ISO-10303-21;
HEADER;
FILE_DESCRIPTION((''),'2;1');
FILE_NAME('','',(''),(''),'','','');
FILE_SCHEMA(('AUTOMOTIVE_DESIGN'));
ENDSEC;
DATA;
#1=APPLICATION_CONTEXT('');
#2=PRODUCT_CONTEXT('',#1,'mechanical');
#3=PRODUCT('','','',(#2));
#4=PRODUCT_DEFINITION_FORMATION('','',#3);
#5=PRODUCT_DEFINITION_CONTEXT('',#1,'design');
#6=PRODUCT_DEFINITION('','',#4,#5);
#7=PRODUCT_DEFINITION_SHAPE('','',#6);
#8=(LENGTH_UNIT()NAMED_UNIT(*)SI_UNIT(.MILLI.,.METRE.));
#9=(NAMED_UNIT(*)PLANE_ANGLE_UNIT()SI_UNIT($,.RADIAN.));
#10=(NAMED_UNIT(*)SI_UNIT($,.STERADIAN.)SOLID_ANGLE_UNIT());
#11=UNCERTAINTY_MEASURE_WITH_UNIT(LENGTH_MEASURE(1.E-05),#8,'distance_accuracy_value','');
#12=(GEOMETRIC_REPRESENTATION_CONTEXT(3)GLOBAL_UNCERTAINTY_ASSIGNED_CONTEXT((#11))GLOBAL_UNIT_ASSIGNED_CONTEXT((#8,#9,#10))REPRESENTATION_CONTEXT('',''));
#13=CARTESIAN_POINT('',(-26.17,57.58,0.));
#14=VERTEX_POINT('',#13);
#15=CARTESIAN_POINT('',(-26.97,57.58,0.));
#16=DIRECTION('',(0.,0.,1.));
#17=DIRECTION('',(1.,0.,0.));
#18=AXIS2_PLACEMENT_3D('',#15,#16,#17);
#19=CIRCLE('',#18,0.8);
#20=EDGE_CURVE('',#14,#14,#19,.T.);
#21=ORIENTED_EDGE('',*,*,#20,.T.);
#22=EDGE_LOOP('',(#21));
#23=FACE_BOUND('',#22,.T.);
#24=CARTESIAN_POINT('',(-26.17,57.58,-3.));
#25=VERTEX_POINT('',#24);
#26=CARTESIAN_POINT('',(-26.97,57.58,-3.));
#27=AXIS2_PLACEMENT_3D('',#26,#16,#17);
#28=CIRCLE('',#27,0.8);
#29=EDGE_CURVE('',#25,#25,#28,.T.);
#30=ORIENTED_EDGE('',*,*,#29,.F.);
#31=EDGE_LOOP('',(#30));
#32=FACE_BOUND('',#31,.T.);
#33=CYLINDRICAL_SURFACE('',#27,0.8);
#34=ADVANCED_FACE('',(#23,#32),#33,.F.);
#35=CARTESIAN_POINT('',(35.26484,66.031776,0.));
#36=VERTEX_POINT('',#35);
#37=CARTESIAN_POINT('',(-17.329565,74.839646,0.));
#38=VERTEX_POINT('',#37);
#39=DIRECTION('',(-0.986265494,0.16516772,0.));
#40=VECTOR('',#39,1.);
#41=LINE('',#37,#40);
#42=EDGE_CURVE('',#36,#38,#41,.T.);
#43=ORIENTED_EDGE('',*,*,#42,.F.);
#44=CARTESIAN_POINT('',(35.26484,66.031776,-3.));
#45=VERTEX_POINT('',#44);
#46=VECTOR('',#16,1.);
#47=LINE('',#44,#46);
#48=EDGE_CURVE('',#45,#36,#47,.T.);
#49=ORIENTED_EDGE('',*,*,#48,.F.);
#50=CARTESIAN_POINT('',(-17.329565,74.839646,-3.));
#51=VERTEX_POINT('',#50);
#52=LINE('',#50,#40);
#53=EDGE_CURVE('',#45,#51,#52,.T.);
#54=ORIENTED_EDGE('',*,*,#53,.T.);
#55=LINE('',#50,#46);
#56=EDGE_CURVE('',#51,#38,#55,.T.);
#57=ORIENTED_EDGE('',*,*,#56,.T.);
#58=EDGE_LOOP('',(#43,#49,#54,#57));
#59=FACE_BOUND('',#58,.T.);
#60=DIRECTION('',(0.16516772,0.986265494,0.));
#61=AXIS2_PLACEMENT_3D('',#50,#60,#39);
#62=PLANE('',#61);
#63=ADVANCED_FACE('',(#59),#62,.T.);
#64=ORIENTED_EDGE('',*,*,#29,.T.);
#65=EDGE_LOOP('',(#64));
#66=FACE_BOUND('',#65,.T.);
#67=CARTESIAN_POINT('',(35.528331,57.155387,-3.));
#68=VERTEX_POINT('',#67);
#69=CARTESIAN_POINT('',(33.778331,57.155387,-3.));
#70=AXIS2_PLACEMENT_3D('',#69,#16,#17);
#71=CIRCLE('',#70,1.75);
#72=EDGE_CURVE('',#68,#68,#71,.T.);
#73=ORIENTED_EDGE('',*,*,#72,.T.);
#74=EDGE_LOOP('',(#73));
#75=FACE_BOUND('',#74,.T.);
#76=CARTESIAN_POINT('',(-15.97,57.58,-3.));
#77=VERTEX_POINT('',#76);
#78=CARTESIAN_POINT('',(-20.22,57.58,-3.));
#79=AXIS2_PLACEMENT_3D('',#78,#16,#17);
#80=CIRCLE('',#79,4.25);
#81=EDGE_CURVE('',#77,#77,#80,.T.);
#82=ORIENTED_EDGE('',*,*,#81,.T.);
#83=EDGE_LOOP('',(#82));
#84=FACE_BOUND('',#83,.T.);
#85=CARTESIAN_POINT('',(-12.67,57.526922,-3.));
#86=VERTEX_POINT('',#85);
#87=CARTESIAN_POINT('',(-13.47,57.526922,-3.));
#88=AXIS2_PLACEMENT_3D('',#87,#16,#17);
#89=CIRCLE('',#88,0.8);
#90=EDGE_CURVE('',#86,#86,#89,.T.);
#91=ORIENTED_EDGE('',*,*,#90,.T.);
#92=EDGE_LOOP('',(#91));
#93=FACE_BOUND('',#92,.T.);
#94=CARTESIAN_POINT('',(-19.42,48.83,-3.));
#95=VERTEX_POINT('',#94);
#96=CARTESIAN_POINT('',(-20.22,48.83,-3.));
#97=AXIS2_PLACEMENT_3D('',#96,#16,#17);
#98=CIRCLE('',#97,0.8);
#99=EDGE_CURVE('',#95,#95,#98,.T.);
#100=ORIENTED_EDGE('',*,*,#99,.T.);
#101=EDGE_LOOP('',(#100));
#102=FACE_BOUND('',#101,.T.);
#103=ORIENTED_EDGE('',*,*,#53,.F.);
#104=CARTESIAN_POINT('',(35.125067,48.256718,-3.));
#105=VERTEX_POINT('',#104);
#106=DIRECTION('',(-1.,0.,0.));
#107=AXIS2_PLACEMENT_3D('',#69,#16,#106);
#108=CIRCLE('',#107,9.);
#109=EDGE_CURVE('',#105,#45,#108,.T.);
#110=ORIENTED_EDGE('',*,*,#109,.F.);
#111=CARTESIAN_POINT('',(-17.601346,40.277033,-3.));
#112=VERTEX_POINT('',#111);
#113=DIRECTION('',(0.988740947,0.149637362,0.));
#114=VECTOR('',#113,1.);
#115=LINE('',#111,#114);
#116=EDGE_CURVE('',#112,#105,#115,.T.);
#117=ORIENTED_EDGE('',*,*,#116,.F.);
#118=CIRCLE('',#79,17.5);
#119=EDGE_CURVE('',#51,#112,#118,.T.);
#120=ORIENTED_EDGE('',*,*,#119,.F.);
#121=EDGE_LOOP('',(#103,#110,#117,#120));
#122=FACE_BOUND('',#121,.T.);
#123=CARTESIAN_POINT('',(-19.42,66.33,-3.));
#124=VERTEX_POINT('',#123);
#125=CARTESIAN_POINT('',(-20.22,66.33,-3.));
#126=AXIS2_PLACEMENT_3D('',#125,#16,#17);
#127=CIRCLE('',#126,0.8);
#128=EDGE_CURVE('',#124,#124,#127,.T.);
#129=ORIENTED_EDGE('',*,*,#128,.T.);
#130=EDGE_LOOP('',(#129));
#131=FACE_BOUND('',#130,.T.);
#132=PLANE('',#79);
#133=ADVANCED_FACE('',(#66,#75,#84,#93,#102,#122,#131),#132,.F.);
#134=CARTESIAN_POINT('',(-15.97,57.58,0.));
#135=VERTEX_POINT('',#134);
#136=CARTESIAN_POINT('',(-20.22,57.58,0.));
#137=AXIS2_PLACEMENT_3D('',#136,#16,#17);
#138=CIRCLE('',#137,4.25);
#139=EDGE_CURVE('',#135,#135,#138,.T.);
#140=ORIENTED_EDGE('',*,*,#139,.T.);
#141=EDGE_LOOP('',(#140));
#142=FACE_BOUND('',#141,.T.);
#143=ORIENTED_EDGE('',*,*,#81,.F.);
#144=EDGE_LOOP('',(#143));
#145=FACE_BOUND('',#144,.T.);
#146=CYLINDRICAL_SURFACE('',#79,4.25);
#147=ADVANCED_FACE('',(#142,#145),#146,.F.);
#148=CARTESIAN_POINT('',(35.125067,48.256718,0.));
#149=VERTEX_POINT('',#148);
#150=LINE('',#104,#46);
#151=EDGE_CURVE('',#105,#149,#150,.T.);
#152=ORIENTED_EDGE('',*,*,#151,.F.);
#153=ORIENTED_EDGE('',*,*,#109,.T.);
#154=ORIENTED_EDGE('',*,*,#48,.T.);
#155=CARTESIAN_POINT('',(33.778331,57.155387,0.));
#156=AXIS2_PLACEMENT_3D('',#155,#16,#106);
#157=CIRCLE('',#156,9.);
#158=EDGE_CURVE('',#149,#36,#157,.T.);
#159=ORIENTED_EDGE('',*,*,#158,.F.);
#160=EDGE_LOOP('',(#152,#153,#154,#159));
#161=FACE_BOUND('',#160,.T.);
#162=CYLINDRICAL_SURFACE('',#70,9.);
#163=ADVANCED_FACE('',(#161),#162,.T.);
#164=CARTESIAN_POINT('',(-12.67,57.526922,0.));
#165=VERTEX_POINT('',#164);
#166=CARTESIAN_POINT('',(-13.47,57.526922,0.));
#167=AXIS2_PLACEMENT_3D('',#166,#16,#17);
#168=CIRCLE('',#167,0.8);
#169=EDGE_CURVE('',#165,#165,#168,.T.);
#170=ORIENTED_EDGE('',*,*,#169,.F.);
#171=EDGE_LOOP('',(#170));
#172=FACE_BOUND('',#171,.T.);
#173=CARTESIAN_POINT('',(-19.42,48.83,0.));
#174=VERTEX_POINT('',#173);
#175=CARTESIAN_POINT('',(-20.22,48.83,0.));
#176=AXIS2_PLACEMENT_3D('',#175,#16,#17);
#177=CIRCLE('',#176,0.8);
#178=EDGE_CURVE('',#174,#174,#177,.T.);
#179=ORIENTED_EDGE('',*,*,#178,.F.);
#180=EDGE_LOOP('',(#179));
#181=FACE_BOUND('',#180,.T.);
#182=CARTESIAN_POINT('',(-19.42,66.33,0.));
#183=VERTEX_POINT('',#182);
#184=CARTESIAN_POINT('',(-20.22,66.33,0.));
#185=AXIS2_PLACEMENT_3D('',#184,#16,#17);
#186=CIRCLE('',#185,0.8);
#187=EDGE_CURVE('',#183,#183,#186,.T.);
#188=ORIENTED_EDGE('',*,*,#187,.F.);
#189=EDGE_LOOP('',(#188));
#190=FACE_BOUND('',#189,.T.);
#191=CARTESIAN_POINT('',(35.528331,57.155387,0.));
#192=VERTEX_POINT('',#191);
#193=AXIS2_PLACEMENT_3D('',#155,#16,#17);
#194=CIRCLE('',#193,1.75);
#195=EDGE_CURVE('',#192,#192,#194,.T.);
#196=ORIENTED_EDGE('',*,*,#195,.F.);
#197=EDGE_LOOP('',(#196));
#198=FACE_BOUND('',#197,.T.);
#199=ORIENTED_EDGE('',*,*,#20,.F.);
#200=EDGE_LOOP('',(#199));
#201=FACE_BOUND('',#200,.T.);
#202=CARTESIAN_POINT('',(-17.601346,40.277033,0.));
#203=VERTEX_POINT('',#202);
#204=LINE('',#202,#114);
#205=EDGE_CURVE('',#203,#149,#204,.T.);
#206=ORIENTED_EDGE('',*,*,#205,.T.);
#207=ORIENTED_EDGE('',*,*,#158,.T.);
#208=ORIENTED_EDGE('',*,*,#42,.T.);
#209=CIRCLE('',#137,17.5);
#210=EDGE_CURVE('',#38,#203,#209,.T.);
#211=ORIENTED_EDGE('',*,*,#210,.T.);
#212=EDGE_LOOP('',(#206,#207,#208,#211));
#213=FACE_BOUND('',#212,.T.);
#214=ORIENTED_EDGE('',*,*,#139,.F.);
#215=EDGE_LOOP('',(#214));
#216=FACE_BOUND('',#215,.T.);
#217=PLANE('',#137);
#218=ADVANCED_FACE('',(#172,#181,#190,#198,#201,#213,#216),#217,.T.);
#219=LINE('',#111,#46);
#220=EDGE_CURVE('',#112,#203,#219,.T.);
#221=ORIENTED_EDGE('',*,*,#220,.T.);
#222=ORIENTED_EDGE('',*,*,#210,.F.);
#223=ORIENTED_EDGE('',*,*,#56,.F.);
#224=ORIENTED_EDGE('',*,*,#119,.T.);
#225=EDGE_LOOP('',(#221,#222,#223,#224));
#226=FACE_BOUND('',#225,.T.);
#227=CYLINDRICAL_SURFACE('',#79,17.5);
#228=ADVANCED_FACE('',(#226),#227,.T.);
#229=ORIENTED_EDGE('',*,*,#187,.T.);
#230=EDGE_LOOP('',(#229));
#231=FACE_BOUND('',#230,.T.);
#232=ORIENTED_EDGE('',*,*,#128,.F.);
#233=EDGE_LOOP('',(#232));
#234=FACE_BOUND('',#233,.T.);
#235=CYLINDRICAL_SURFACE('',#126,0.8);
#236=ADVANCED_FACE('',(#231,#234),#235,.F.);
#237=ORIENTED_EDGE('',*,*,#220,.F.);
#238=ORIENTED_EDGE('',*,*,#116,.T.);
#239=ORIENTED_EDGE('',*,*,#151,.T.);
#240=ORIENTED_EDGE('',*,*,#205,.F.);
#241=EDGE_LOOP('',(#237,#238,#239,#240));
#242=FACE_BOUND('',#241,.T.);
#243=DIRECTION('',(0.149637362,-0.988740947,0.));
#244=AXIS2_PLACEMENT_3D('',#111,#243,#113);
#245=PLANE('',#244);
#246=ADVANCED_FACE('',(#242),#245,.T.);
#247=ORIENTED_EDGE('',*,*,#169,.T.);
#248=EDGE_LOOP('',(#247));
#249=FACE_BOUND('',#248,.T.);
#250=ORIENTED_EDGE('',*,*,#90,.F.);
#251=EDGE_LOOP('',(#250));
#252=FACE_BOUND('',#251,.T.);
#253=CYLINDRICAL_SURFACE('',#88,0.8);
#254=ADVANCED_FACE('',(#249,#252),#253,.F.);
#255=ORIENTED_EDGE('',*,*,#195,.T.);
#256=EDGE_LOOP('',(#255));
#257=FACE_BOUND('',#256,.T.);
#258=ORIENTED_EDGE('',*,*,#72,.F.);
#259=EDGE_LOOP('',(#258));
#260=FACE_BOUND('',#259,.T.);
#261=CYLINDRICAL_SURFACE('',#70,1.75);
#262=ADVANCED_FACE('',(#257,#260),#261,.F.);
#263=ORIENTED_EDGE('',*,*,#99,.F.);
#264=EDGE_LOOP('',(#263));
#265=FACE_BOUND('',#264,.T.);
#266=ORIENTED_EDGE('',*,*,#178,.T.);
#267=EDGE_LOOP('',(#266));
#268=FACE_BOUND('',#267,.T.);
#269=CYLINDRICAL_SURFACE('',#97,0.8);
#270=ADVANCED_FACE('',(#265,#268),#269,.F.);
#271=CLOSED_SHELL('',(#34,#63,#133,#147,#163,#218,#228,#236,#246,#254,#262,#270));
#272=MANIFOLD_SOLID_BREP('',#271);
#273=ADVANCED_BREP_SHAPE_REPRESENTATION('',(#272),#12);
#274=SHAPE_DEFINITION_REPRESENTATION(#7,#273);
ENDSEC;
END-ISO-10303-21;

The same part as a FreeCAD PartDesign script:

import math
import FreeCAD as App
import Part
import Sketcher
Q = App.Units.Quantity

doc = App.newDocument("Part")
body = doc.addObject("PartDesign::Body", "Body")

# Sketch on XY plane
sketch1 = doc.addObject("Sketcher::SketchObject", "Sketch")
body.addObject(sketch1)
sketch1.AttachmentSupport = (doc.XY_Plane, [""])
sketch1.MapMode = "FlatFace"
sketch1.addGeometry([
    Part.LineSegment(App.Vector(35.3, 66, 0), App.Vector(-17.3, 74.8, 0)),  # 0
    Part.ArcOfCircle(Part.Circle(App.Vector(-20.2, 57.6, 0), App.Vector(0, 0, 1), 17.5), math.radians(80), math.radians(279)),  # 1
    Part.LineSegment(App.Vector(-17.6, 40.3, 0), App.Vector(35.1, 48.3, 0)),  # 2
    Part.ArcOfCircle(Part.Circle(App.Vector(33.8, 57.2, 0), App.Vector(0, 0, 1), 9), math.radians(-81), math.radians(80)),  # 3
    Part.Circle(App.Vector(33.8, 57.2, 0), App.Vector(0, 0, 1), 1.8),  # 4
    Part.Circle(App.Vector(-20.2, 48.8, 0), App.Vector(0, 0, 1), 0.8),  # 5
    Part.Circle(App.Vector(-13.5, 57.5, 0), App.Vector(0, 0, 1), 0.8),  # 6
    Part.Circle(App.Vector(-20.2, 57.6, 0), App.Vector(0, 0, 1), 4.2),  # 7
    Part.Circle(App.Vector(-27, 57.6, 0), App.Vector(0, 0, 1), 0.8),  # 8
    Part.Circle(App.Vector(-20.2, 66.3, 0), App.Vector(0, 0, 1), 0.8),  # 9
], False)
sketch1.addConstraint([
    Sketcher.Constraint("Tangent", 0, 2, 1, 1),
    Sketcher.Constraint("Tangent", 1, 2, 2, 1),
    Sketcher.Constraint("Tangent", 2, 2, 3, 1),
    Sketcher.Constraint("Tangent", 3, 2, 0, 1),
    Sketcher.Constraint("Coincident", 4, 3, 3, 3),
    Sketcher.Constraint("Coincident", 7, 3, 1, 3),
    Sketcher.Constraint("Equal", 5, 6),
    Sketcher.Constraint("Equal", 6, 8),
    Sketcher.Constraint("Equal", 8, 9),
    Sketcher.Constraint("Horizontal", 7, 3, 8, 3),
    Sketcher.Constraint("Vertical", 1, 3, 5, 3),
    Sketcher.Constraint("Vertical", 7, 3, 9, 3),
    Sketcher.Constraint("Radius", 3, Q("9 mm")),
    Sketcher.Constraint("Diameter", 4, Q("3.5 mm")),
    Sketcher.Constraint("Diameter", 5, Q("1.6 mm")),
    Sketcher.Constraint("Diameter", 7, Q("8.5 mm")),
    Sketcher.Constraint("Radius", 1, Q("17.5 mm")),
    Sketcher.Constraint("DistanceX", 8, 3, 6, 3, Q("13.5 mm")),
    Sketcher.Constraint("DistanceY", 5, 3, 9, 3, Q("17.5 mm")),
    Sketcher.Constraint("DistanceX", 1, 3, -1, 1, Q("20.22 mm")),
    Sketcher.Constraint("DistanceY", -1, 1, 1, 3, Q("57.58 mm")),
    Sketcher.Constraint("DistanceY", -1, 1, 5, 3, Q("48.83 mm")),
    Sketcher.Constraint("DistanceX", 6, 3, -1, 1, Q("13.47 mm")),
    Sketcher.Constraint("DistanceX", -1, 1, 3, 3, Q("33.778331 mm")),
    Sketcher.Constraint("DistanceY", -1, 1, 6, 3, Q("57.526922 mm")),
    Sketcher.Constraint("DistanceY", -1, 1, 2, 2, Q("48.256718 mm")),
])
pad1 = doc.addObject("PartDesign::Pad", "Pad")
body.addObject(pad1)
pad1.Profile = sketch1
pad1.Length = 3
pad1.Reversed = True

doc.recompute()
